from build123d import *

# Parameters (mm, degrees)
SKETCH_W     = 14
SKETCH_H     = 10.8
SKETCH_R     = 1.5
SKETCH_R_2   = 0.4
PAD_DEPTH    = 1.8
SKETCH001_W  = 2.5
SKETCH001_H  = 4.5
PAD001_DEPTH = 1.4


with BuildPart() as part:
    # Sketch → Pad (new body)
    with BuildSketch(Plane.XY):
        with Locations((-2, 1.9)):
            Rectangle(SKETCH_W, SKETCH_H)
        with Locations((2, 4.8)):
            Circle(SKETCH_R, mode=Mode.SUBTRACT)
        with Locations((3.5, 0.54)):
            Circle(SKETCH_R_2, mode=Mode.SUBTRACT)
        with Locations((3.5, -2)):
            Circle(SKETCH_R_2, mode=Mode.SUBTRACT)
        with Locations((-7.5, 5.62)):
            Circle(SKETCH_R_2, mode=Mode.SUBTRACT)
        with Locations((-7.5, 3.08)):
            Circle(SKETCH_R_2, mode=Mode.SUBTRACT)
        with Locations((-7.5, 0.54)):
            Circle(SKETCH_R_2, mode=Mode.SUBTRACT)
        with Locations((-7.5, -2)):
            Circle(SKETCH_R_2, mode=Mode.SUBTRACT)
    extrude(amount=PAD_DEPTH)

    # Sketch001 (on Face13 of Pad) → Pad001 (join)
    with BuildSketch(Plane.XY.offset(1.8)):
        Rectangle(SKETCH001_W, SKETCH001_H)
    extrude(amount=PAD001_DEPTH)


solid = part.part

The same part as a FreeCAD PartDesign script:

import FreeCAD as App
import Part
import Sketcher
from FreeCAD import Vector

doc = App.newDocument("Part")
body = doc.addObject("PartDesign::Body", "Body")

# Sketch on XY plane
sketch1 = body.newObject("Sketcher::SketchObject", "Sketch")
sketch1.AttachmentSupport = (doc.getObject("XY_Plane"), [""])
sketch1.MapMode = "FlatFace"
sketch1.addGeometry([
    Part.LineSegment(Vector(-9, 7.3, 0), Vector(-9, -3.5, 0)),  # 0
    Part.LineSegment(Vector(-9, -3.5, 0), Vector(5, -3.5, 0)),  # 1
    Part.LineSegment(Vector(5, -3.5, 0), Vector(5, 7.3, 0)),  # 2
    Part.LineSegment(Vector(5, 7.3, 0), Vector(-9, 7.3, 0)),  # 3
    Part.Circle(Vector(-7.5, -2, 0), Vector(0, 0, 1), 0.4),  # 4
    Part.Circle(Vector(-7.5, 0.54, 0), Vector(0, 0, 1), 0.4),  # 5
    Part.Circle(Vector(3.5, -2, 0), Vector(0, 0, 1), 0.4),  # 6
    Part.Circle(Vector(3.5, 0.54, 0), Vector(0, 0, 1), 0.4),  # 7
    Part.Circle(Vector(-7.5, 3.08, 0), Vector(0, 0, 1), 0.4),  # 8
    Part.Circle(Vector(-7.5, 5.62, 0), Vector(0, 0, 1), 0.4),  # 9
    Part.Circle(Vector(2, 4.8, 0), Vector(0, 0, 1), 1.5),  # 10
], False)
sketch1.addConstraint([
    Sketcher.Constraint("Coincident", 0, 2, 1, 1),
    Sketcher.Constraint("Coincident", 1, 2, 2, 1),
    Sketcher.Constraint("Coincident", 2, 2, 3, 1),
    Sketcher.Constraint("Coincident", 3, 2, 0, 1),
    Sketcher.Constraint("Vertical", 0),
    Sketcher.Constraint("Horizontal", 1),
    Sketcher.Constraint("Vertical", 2),
    Sketcher.Constraint("Horizontal", 3),
    Sketcher.Constraint("Equal", 4, 5),
    Sketcher.Constraint("Equal", 5, 6),
    Sketcher.Constraint("Equal", 6, 7),
    Sketcher.Constraint("Equal", 7, 8),
    Sketcher.Constraint("Equal", 8, 9),
    Sketcher.Constraint("Horizontal", 4, 3, 6, 3),
    Sketcher.Constraint("Horizontal", 5, 3, 7, 3),
    Sketcher.Constraint("Vertical", 4, 3, 5, 3),
    Sketcher.Constraint("Vertical", 6, 3, 7, 3),
    Sketcher.Constraint("Vertical", 5, 3, 8, 3),
    Sketcher.Constraint("Vertical", 8, 3, 9, 3),
    Sketcher.Constraint("Diameter", 10, 3.0),
    Sketcher.Constraint("Diameter", 4, 0.8),
    Sketcher.Constraint("DistanceX", 1, 1, 1, 2, 14.0),
    Sketcher.Constraint("DistanceY", 0, 2, 0, 1, 10.8),
    Sketcher.Constraint("DistanceY", 4, 3, -1, 1, 2.0),
    Sketcher.Constraint("DistanceX", -1, 1, 10, 3, 2.0),
    Sketcher.Constraint("DistanceX", 0, 2, -1, 1, 9.0),
    Sketcher.Constraint("DistanceX", 4, 3, 6, 3, 11.0),
    Sketcher.Constraint("DistanceX", 4, 3, -1, 1, 7.5),
    Sketcher.Constraint("DistanceY", -1, 1, 10, 3, 4.8),
    Sketcher.Constraint("DistanceY", 0, 2, -1, 1, 3.5),
    Sketcher.Constraint("DistanceY", -1, 1, 5, 3, 0.54),
    Sketcher.Constraint("DistanceY", -1, 1, 8, 3, 3.08),
    Sketcher.Constraint("DistanceY", -1, 1, 9, 3, 5.62),
])
pad1 = body.newObject("PartDesign::Pad", "Pad")
pad1.Profile = sketch1
pad1.Length = 1.8

# Sketch on XY plane
sketch2 = body.newObject("Sketcher::SketchObject", "Sketch001")
sketch2.AttachmentSupport = (doc.getObject("XY_Plane"), [""])
sketch2.MapMode = "FlatFace"
sketch2.AttachmentOffset = App.Placement(Vector(0, 0, 1.8), App.Rotation())
sketch2.addGeometry([
    Part.LineSegment(Vector(-1.2, 2.2, 0), Vector(-1.2, -2.2, 0)),
    Part.LineSegment(Vector(-1.2, -2.2, 0), Vector(1.2, -2.2, 0)),
    Part.LineSegment(Vector(1.2, -2.2, 0), Vector(1.2, 2.2, 0)),
    Part.LineSegment(Vector(1.2, 2.2, 0), Vector(-1.2, 2.2, 0)),
], False)
sketch2.addConstraint([
    Sketcher.Constraint("Coincident", 0, 2, 1, 1),
    Sketcher.Constraint("Coincident", 1, 2, 2, 1),
    Sketcher.Constraint("Coincident", 2, 2, 3, 1),
    Sketcher.Constraint("Coincident", 3, 2, 0, 1),
    Sketcher.Constraint("Vertical", 0),
    Sketcher.Constraint("Horizontal", 1),
    Sketcher.Constraint("Vertical", 2),
    Sketcher.Constraint("Horizontal", 3),
    Sketcher.Constraint("Symmetric", 0, 2, 2, 2, -1, 1),
    Sketcher.Constraint("DistanceX", 1, 1, 1, 2, 2.5),
    Sketcher.Constraint("DistanceY", 0, 2, 0, 1, 4.5),
])
pad2 = body.newObject("PartDesign::Pad", "Pad001")
pad2.Profile = sketch2
pad2.Length = 1.4

doc.recompute()
